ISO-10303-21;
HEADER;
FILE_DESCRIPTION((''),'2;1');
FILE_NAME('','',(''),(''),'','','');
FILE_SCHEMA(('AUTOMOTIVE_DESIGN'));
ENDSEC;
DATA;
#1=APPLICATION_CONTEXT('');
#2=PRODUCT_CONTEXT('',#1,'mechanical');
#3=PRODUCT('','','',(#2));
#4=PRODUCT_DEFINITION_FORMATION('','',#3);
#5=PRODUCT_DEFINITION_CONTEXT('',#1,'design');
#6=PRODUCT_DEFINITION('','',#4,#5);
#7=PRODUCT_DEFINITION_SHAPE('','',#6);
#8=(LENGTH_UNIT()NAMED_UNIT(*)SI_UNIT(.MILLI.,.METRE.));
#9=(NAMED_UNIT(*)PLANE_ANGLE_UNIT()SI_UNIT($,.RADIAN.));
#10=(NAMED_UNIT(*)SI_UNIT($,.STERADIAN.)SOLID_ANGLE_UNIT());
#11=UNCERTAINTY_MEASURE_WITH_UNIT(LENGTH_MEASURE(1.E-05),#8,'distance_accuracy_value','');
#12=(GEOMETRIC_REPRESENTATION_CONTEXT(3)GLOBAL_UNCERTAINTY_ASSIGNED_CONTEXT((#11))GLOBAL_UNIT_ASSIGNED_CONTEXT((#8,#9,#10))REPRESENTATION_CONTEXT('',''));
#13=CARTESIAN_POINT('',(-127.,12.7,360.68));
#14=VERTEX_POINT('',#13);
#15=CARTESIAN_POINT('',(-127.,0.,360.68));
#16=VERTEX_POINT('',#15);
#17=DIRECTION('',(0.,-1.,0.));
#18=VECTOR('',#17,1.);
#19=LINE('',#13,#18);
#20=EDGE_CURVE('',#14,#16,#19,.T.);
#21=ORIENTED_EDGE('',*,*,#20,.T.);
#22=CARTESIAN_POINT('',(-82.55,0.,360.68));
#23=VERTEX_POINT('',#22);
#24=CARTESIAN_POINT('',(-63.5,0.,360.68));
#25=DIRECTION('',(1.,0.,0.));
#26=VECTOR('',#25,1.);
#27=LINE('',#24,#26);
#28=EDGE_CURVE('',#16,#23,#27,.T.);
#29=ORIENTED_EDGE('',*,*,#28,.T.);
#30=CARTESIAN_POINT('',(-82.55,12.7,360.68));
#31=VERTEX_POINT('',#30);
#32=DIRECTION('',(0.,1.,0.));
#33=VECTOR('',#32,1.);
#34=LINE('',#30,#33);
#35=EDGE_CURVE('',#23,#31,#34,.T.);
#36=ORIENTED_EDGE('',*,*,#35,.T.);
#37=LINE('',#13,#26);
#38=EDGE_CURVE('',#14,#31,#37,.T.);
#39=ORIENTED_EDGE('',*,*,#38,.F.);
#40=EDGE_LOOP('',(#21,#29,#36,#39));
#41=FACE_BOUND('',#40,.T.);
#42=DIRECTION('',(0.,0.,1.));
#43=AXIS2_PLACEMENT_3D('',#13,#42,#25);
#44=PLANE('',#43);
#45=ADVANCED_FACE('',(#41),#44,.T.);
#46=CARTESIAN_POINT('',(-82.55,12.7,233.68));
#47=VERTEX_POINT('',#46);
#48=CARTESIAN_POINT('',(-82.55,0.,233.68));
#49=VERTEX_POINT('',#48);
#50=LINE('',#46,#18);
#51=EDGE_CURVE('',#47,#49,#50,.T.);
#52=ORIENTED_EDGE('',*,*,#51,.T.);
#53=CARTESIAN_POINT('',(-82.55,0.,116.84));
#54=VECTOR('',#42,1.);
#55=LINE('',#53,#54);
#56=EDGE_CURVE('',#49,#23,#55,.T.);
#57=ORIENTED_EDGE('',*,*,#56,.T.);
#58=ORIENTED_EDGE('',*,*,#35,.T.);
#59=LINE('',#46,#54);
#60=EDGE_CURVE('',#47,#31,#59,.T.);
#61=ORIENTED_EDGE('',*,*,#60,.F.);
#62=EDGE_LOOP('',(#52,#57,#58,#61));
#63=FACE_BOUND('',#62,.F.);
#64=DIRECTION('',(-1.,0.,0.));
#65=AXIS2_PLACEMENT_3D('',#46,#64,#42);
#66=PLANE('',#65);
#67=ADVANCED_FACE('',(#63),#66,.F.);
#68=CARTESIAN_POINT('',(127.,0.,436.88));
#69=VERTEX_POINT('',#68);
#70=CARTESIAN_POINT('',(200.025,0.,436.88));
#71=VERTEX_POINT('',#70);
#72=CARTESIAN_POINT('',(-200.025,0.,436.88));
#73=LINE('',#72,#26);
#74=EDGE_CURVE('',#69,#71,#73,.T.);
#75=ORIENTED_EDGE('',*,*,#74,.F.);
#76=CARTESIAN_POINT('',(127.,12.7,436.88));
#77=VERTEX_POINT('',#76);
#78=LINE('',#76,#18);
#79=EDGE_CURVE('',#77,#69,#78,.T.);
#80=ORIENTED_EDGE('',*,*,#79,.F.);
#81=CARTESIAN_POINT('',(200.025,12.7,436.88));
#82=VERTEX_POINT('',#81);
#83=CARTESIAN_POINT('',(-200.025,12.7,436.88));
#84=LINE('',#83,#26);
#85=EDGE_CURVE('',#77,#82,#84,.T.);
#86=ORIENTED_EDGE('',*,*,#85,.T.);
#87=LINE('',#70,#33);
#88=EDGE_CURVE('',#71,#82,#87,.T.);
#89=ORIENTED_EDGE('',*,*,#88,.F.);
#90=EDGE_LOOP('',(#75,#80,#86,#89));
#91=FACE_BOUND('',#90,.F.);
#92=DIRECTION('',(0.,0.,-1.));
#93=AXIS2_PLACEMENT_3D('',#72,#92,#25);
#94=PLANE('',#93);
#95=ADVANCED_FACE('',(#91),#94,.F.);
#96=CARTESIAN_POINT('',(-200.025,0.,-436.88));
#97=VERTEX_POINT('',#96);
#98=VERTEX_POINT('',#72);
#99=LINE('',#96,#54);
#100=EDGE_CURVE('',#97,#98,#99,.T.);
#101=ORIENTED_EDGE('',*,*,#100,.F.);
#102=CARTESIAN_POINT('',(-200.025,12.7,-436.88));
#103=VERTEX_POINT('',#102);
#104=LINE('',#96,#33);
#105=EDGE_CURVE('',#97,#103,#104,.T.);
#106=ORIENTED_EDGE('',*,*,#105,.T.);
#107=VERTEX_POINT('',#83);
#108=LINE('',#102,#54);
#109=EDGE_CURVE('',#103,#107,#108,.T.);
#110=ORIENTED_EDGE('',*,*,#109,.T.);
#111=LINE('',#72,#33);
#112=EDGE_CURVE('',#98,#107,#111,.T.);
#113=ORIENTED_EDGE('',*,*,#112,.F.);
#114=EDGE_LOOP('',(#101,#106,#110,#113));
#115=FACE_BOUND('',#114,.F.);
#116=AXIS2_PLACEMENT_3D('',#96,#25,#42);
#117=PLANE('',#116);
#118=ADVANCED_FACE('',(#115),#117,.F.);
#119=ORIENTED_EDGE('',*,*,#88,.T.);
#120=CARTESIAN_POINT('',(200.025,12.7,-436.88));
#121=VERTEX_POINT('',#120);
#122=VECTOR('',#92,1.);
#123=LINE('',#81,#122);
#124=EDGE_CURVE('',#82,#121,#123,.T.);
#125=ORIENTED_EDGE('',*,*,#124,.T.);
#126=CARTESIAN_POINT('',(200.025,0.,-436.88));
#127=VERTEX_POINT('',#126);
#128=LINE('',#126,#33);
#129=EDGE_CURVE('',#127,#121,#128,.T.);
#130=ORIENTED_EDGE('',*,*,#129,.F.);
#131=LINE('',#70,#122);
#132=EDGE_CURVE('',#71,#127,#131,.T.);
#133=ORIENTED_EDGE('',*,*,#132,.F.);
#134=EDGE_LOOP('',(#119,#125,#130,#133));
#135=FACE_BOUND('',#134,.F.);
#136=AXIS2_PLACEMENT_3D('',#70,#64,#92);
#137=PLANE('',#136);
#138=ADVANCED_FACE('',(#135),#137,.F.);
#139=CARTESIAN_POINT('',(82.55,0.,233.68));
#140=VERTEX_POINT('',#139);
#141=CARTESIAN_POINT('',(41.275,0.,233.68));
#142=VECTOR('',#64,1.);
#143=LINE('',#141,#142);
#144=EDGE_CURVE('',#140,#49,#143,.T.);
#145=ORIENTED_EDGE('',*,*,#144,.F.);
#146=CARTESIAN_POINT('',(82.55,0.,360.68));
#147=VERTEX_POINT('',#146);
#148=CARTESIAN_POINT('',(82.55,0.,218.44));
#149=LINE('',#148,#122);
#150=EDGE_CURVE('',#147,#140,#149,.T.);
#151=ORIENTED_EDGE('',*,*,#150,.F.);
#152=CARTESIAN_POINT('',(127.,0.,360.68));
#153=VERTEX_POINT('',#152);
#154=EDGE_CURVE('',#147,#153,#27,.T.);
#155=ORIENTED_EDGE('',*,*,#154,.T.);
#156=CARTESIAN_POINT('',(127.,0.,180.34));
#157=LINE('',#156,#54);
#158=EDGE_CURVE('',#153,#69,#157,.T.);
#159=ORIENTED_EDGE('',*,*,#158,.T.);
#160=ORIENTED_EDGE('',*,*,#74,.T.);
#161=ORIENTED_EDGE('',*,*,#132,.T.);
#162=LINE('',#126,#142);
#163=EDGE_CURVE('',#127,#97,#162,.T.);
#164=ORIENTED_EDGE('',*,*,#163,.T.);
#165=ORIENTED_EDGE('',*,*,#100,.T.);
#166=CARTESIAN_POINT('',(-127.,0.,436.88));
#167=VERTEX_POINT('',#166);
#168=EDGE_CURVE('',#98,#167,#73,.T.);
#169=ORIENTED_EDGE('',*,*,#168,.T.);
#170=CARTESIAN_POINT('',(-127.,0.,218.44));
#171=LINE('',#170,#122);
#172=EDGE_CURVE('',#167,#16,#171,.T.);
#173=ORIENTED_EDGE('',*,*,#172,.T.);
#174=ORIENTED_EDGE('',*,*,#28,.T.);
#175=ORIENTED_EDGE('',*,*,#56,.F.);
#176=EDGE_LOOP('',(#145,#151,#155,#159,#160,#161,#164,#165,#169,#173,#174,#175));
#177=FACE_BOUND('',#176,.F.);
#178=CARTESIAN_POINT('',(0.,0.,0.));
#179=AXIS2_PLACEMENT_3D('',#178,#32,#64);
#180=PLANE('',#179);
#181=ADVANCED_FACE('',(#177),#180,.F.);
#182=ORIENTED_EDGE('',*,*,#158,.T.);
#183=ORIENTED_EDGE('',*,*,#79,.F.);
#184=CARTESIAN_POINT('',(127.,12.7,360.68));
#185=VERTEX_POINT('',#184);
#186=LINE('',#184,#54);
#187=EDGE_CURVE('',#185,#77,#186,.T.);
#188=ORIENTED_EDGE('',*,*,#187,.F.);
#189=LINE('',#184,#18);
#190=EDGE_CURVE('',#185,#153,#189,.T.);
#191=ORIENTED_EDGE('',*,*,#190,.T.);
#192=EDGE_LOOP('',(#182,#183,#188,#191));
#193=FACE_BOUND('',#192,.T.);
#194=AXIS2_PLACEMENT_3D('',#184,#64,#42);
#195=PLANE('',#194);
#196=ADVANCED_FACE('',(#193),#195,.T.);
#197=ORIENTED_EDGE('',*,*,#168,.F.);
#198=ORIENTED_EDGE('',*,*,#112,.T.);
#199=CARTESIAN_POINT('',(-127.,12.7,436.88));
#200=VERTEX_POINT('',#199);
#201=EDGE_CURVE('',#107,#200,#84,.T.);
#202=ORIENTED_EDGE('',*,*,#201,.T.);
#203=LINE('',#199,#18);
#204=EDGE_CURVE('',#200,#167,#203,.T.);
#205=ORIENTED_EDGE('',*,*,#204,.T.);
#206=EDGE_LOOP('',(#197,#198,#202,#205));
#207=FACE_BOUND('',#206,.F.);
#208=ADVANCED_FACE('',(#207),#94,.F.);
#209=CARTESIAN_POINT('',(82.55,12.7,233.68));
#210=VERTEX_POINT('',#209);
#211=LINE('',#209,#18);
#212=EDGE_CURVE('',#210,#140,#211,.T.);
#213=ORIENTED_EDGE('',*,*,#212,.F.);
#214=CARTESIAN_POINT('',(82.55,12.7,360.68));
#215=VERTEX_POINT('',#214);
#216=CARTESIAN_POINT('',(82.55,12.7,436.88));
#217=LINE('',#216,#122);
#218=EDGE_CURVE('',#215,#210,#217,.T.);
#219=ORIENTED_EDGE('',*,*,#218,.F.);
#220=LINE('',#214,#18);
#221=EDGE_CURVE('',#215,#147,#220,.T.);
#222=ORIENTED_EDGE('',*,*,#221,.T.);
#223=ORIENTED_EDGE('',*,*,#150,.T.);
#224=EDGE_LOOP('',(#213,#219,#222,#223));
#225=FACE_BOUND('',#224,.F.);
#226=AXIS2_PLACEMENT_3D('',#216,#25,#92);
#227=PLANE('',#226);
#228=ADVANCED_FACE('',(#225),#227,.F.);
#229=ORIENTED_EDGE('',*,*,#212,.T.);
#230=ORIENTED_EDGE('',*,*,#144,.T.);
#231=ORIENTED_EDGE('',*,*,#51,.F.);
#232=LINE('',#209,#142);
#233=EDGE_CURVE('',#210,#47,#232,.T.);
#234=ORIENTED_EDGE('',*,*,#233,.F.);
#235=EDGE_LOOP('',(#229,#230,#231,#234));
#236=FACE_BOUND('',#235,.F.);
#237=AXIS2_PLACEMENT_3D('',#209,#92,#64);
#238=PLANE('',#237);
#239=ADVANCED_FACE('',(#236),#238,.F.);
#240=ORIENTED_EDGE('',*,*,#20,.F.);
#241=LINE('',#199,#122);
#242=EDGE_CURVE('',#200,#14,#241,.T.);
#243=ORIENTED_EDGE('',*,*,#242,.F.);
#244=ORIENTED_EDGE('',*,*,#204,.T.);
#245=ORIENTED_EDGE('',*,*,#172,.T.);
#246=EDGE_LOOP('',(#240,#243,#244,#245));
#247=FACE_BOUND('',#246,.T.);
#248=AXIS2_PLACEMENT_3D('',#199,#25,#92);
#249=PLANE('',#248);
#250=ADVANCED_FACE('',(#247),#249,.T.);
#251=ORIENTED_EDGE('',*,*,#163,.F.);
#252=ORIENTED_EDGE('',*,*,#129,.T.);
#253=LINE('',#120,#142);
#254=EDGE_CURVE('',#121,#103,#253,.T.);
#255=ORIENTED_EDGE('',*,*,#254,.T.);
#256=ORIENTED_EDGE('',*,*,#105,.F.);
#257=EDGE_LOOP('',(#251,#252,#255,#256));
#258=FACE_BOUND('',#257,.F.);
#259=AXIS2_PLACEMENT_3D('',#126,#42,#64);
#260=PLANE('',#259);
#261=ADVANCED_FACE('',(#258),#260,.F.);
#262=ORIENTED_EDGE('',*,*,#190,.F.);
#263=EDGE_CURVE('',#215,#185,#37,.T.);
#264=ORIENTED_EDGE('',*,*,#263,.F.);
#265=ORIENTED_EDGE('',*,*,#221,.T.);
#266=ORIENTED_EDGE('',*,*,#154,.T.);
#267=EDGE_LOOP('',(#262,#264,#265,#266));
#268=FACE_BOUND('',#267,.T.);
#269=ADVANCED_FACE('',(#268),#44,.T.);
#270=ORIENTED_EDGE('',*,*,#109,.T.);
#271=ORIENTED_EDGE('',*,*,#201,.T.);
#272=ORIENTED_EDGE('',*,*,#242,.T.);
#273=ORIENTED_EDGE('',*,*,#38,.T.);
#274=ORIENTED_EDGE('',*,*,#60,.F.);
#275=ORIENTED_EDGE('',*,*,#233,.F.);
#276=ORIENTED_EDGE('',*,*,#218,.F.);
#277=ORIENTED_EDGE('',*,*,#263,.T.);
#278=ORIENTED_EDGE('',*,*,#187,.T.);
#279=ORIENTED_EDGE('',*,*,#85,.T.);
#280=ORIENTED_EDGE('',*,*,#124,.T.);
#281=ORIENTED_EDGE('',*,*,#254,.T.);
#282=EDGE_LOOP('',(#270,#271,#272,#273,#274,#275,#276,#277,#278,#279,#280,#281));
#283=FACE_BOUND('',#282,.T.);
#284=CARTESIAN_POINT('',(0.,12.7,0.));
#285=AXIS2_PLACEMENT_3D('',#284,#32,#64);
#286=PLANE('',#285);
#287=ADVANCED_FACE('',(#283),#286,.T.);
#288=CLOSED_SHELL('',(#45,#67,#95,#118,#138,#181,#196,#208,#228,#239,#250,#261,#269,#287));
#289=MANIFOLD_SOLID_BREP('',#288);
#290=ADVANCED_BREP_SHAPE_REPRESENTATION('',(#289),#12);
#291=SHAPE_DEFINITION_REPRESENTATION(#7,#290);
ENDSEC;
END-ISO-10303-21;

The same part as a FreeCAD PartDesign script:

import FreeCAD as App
import Part
import Sketcher
from FreeCAD import Vector
Q = App.Units.Quantity

doc = App.newDocument("Part")
body = doc.addObject("PartDesign::Body", "Body")

# Sketch on XZ plane
sketch1 = doc.addObject("Sketcher::SketchObject", "Sketch")
body.addObject(sketch1)
sketch1.AttachmentSupport = (doc.XZ_Plane, [""])
sketch1.MapMode = "FlatFace"
sketch1.addGeometry([
    Part.LineSegment(Vector(-200, -437, 0), Vector(-200, 437, 0)),
    Part.LineSegment(Vector(-200, 437, 0), Vector(200, 437, 0)),
    Part.LineSegment(Vector(200, 437, 0), Vector(200, -437, 0)),
    Part.LineSegment(Vector(200, -437, 0), Vector(-200, -437, 0)),
], False)
sketch1.addConstraint([
    Sketcher.Constraint("Coincident", 0, 2, 1, 1),
    Sketcher.Constraint("Coincident", 1, 2, 2, 1),
    Sketcher.Constraint("Coincident", 2, 2, 3, 1),
    Sketcher.Constraint("Coincident", 3, 2, 0, 1),
    Sketcher.Constraint("Vertical", 0),
    Sketcher.Constraint("Horizontal", 1),
    Sketcher.Constraint("Vertical", 2),
    Sketcher.Constraint("Horizontal", 3),
    Sketcher.Constraint("Symmetric", 0, 2, 2, 2, -1, 1),
    Sketcher.Constraint("DistanceY", 0, 1, 0, 2, Q("34.4 in")),
    Sketcher.Constraint("DistanceX", 1, 1, 1, 2, Q("15.75 in")),
])
pad1 = doc.addObject("PartDesign::Pad", "Pad")
body.addObject(pad1)
pad1.Profile = sketch1
pad1.Length = Q("0.5 in")
pad1.Reversed = True

# Sketch on XZ plane
sketch2 = doc.addObject("Sketcher::SketchObject", "Sketch001")
body.addObject(sketch2)
sketch2.AttachmentSupport = (doc.XZ_Plane, [""])
sketch2.MapMode = "FlatFace"
sketch2.AttachmentOffset = App.Placement(Vector(0, 0, -0.5 * 25.4), App.Rotation())
sketch2.addGeometry([
    Part.LineSegment(Vector(-83, 234, 0), Vector(-83, 437, 0)),
    Part.LineSegment(Vector(-83, 437, 0), Vector(83, 437, 0)),
    Part.LineSegment(Vector(83, 437, 0), Vector(83, 234, 0)),
    Part.LineSegment(Vector(83, 234, 0), Vector(-83, 234, 0)),
], False)
sketch2.addConstraint([
    Sketcher.Constraint("Coincident", 0, 2, 1, 1),
    Sketcher.Constraint("Coincident", 1, 2, 2, 1),
    Sketcher.Constraint("Coincident", 2, 2, 3, 1),
    Sketcher.Constraint("Coincident", 3, 2, 0, 1),
    Sketcher.Constraint("Vertical", 0),
    Sketcher.Constraint("Horizontal", 1),
    Sketcher.Constraint("Vertical", 2),
    Sketcher.Constraint("Horizontal", 3),
    Sketcher.Constraint("DistanceY", 0, 1, 0, 2, Q("8 in")),
    Sketcher.Constraint("DistanceX", 1, 1, 1, 2, Q("6.5 in")),
    Sketcher.Constraint("DistanceY", -1, 1, 0, 2, Q("17.2 in")),
    Sketcher.Constraint("DistanceX", 0, 2, -1, 1, Q("3.25 in")),
])
pocket1 = doc.addObject("PartDesign::Pocket", "Pocket")
body.addObject(pocket1)
pocket1.Profile = sketch2
pocket1.Type = "ThroughAll"
pocket1.Reversed = True

# Sketch on XZ plane
sketch3 = doc.addObject("Sketcher::SketchObject", "Sketch002")
body.addObject(sketch3)
sketch3.AttachmentSupport = (doc.XZ_Plane, [""])
sketch3.MapMode = "FlatFace"
sketch3.AttachmentOffset = App.Placement(Vector(0, 0, -0.5 * 25.4), App.Rotation())
sketch3.addGeometry([
    Part.LineSegment(Vector(127, 361, 0), Vector(-127, 361, 0)),
    Part.LineSegment(Vector(-127, 361, 0), Vector(-127, 437, 0)),
    Part.LineSegment(Vector(-127, 437, 0), Vector(127, 437, 0)),
    Part.LineSegment(Vector(127, 437, 0), Vector(127, 361, 0)),
], False)
sketch3.addConstraint([
    Sketcher.Constraint("Coincident", 0, 2, 1, 1),
    Sketcher.Constraint("Coincident", 1, 2, 2, 1),
    Sketcher.Constraint("Coincident", 2, 2, 3, 1),
    Sketcher.Constraint("Coincident", 3, 2, 0, 1),
    Sketcher.Constraint("Horizontal", 0),
    Sketcher.Constraint("Vertical", 1),
    Sketcher.Constraint("Horizontal", 2),
    Sketcher.Constraint("Vertical", 3),
    Sketcher.Constraint("DistanceX", 0, 2, 0, 1, Q("10 in")),
    Sketcher.Constraint("DistanceY", 1, 1, 1, 2, Q("3 in")),
    Sketcher.Constraint("DistanceX", 0, 2, -1, 1, Q("5 in")),
    Sketcher.Constraint("DistanceY", -1, 1, 0, 2, Q("14.2 in")),
])
pocket2 = doc.addObject("PartDesign::Pocket", "Pocket001")
body.addObject(pocket2)
pocket2.Profile = sketch3
pocket2.Type = "ThroughAll"
pocket2.Reversed = True

doc.recompute()
